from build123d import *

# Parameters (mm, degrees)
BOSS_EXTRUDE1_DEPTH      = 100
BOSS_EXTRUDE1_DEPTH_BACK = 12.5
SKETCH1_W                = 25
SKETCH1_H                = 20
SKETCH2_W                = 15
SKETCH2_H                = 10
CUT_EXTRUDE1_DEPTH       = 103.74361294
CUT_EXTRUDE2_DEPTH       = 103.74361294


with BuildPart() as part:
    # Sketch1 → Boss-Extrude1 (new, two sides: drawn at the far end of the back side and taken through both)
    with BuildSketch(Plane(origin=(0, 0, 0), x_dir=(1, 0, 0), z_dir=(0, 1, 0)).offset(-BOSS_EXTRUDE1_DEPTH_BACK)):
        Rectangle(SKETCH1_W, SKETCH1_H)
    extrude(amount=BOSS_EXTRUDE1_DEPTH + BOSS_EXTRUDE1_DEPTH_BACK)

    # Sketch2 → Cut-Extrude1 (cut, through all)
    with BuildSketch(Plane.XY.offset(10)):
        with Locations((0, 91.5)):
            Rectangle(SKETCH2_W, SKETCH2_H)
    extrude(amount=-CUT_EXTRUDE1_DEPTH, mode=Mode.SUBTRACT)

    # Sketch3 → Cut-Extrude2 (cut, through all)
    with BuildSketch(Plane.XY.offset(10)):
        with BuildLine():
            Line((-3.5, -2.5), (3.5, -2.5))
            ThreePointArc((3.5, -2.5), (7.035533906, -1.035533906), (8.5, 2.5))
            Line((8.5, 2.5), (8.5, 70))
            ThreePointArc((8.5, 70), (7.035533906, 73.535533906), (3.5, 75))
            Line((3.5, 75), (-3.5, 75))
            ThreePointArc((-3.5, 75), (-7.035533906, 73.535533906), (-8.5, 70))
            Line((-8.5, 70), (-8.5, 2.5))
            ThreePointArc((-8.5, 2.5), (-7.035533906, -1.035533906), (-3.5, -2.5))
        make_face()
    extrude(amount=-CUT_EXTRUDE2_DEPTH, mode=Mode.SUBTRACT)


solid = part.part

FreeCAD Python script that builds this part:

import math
import FreeCAD as App
import Part
import Sketcher

V = App.Vector
Q = App.Units.Quantity

doc = App.newDocument("Part")
params = doc.addObject("Spreadsheet::Sheet", "Params")
for row, (alias, value) in enumerate([
    ("sketch1_width", "25 mm"),
    ("sketch1_height", "20 mm"),
    ("pad1_length", "100 mm"),
    ("pad1_length2", "12.5 mm"),
    ("sketch2_width", "15 mm"),
    ("sketch2_height", "10 mm"),
    ("sketch3_radius", "5 mm"),
    ("sketch3_width", "7 mm"),
    ("sketch3_height", "67.5 mm"),
], start=1):
    params.set(f"A{row}", alias)
    params.set(f"B{row}", "=" + value)
    params.setAlias(f"B{row}", alias)

body = doc.addObject("PartDesign::Body", "Body")

# Sketch on XZ plane
sketch1 = body.newObject("Sketcher::SketchObject", "Sketch")
sketch1.AttachmentSupport = (doc.getObject("XZ_Plane"), [""])
sketch1.MapMode = "FlatFace"
sketch1.addGeometry(Part.LineSegment(V(-12, -10, 0), V(-12, 10, 0)), False)
sketch1.addGeometry(Part.LineSegment(V(-12, 10, 0), V(12, 10, 0)), False)
sketch1.addGeometry(Part.LineSegment(V(12, 10, 0), V(12, -10, 0)), False)
sketch1.addGeometry(Part.LineSegment(V(12, -10, 0), V(-12, -10, 0)), False)
sketch1.addConstraint(Sketcher.Constraint("Coincident", 0, 2, 1, 1))
sketch1.addConstraint(Sketcher.Constraint("Coincident", 1, 2, 2, 1))
sketch1.addConstraint(Sketcher.Constraint("Coincident", 2, 2, 3, 1))
sketch1.addConstraint(Sketcher.Constraint("Coincident", 3, 2, 0, 1))
sketch1.addConstraint(Sketcher.Constraint("Vertical", 0))
sketch1.addConstraint(Sketcher.Constraint("Horizontal", 1))
sketch1.addConstraint(Sketcher.Constraint("Vertical", 2))
sketch1.addConstraint(Sketcher.Constraint("Horizontal", 3))
sketch1.addConstraint(Sketcher.Constraint("Symmetric", 0, 2, 2, 2, -1, 1))
sketch1.addConstraint(Sketcher.Constraint("DistanceX", 1, 1, 1, 2, Q("25 mm")))
sketch1.addConstraint(Sketcher.Constraint("DistanceY", 0, 1, 0, 2, Q("20 mm")))
sketch1.setExpression("Constraints[9]", "Params.sketch1_width")
sketch1.setExpression("Constraints[10]", "Params.sketch1_height")
pad1 = body.newObject("PartDesign::Pad", "Pad")
pad1.Profile = sketch1
pad1.Type = "TwoLengths"
pad1.setExpression("Length", "Params.pad1_length")
pad1.setExpression("Length2", "Params.pad1_length2")
pad1.Reversed = True

# Sketch on XY plane
sketch2 = body.newObject("Sketcher::SketchObject", "Sketch001")
sketch2.AttachmentSupport = (doc.getObject("XY_Plane"), [""])
sketch2.MapMode = "FlatFace"
sketch2.AttachmentOffset = App.Placement(V(0, 0, 10), App.Rotation())
sketch2.addGeometry(Part.LineSegment(V(-8, 96, 0), V(-8, 86, 0)), False)
sketch2.addGeometry(Part.LineSegment(V(-8, 86, 0), V(8, 86, 0)), False)
sketch2.addGeometry(Part.LineSegment(V(8, 86, 0), V(8, 96, 0)), False)
sketch2.addGeometry(Part.LineSegment(V(8, 96, 0), V(-8, 96, 0)), False)
sketch2.addConstraint(Sketcher.Constraint("Coincident", 0, 2, 1, 1))
sketch2.addConstraint(Sketcher.Constraint("Coincident", 1, 2, 2, 1))
sketch2.addConstraint(Sketcher.Constraint("Coincident", 2, 2, 3, 1))
sketch2.addConstraint(Sketcher.Constraint("Coincident", 3, 2, 0, 1))
sketch2.addConstraint(Sketcher.Constraint("Vertical", 0))
sketch2.addConstraint(Sketcher.Constraint("Horizontal", 1))
sketch2.addConstraint(Sketcher.Constraint("Vertical", 2))
sketch2.addConstraint(Sketcher.Constraint("Horizontal", 3))
sketch2.addConstraint(Sketcher.Constraint("DistanceX", 1, 1, 1, 2, Q("15 mm")))
sketch2.addConstraint(Sketcher.Constraint("DistanceY", 0, 2, 0, 1, Q("10 mm")))
sketch2.addConstraint(Sketcher.Constraint("DistanceX", 0, 2, -1, 1, Q("7.5 mm")))
sketch2.addConstraint(Sketcher.Constraint("DistanceY", -1, 1, 0, 2, Q("86.5 mm")))
sketch2.setExpression("Constraints[8]", "Params.sketch2_width")
sketch2.setExpression("Constraints[9]", "Params.sketch2_height")
pocket1 = body.newObject("PartDesign::Pocket", "Pocket")
pocket1.Profile = sketch2
pocket1.Type = "ThroughAll"

# Sketch on XY plane
sketch3 = body.newObject("Sketcher::SketchObject", "Sketch002")
sketch3.AttachmentSupport = (doc.getObject("XY_Plane"), [""])
sketch3.MapMode = "FlatFace"
sketch3.AttachmentOffset = App.Placement(V(0, 0, 10), App.Rotation())
sketch3.addGeometry(Part.LineSegment(V(-4, -2, 0), V(4, -2, 0)), False)
sketch3.addGeometry(Part.ArcOfCircle(Part.Circle(V(4, 2, 0), V(0, 0, 1), 5), math.radians(-90), math.radians(0)), False)
sketch3.addGeometry(Part.LineSegment(V(8, 2, 0), V(8, 70, 0)), False)
sketch3.addGeometry(Part.ArcOfCircle(Part.Circle(V(4, 70, 0), V(0, 0, 1), 5), math.radians(0), math.radians(90)), False)
sketch3.addGeometry(Part.LineSegment(V(4, 75, 0), V(-4, 75, 0)), False)
sketch3.addGeometry(Part.ArcOfCircle(Part.Circle(V(-4, 70, 0), V(0, 0, 1), 5), math.radians(90), math.radians(180)), False)
sketch3.addGeometry(Part.LineSegment(V(-8, 70, 0), V(-8, 2, 0)), False)
sketch3.addGeometry(Part.ArcOfCircle(Part.Circle(V(-4, 2, 0), V(0, 0, 1), 5), math.radians(180), math.radians(270)), False)
sketch3.addConstraint(Sketcher.Constraint("Tangent", 0, 2, 1, 1))
sketch3.addConstraint(Sketcher.Constraint("Tangent", 1, 2, 2, 1))
sketch3.addConstraint(Sketcher.Constraint("Tangent", 2, 2, 3, 1))
sketch3.addConstraint(Sketcher.Constraint("Tangent", 3, 2, 4, 1))
sketch3.addConstraint(Sketcher.Constraint("Tangent", 4, 2, 5, 1))
sketch3.addConstraint(Sketcher.Constraint("Tangent", 5, 2, 6, 1))
sketch3.addConstraint(Sketcher.Constraint("Tangent", 6, 2, 7, 1))
sketch3.addConstraint(Sketcher.Constraint("Tangent", 7, 2, 0, 1))
sketch3.addConstraint(Sketcher.Constraint("Horizontal", 0))
sketch3.addConstraint(Sketcher.Constraint("Vertical", 2))
sketch3.addConstraint(Sketcher.Constraint("Horizontal", 4))
sketch3.addConstraint(Sketcher.Constraint("Vertical", 6))
sketch3.addConstraint(Sketcher.Constraint("Equal", 1, 3))
sketch3.addConstraint(Sketcher.Constraint("Equal", 3, 5))
sketch3.addConstraint(Sketcher.Constraint("Equal", 5, 7))
sketch3.addConstraint(Sketcher.Constraint("Radius", 1, Q("5 mm")))
sketch3.addConstraint(Sketcher.Constraint("DistanceX", 0, 1, 0, 2, Q("7 mm")))
sketch3.addConstraint(Sketcher.Constraint("DistanceY", 2, 1, 2, 2, Q("67.5 mm")))
sketch3.addConstraint(Sketcher.Constraint("DistanceY", -1, 1, 3, 3, Q("70 mm")))
sketch3.addConstraint(Sketcher.Constraint("DistanceX", -1, 1, 1, 3, Q("3.5 mm")))
sketch3.setExpression("Constraints[15]", "Params.sketch3_radius")
sketch3.setExpression("Constraints[16]", "Params.sketch3_width")
sketch3.setExpression("Constraints[17]", "Params.sketch3_height")
pocket2 = body.newObject("PartDesign::Pocket", "Pocket001")
pocket2.Profile = sketch3
pocket2.Type = "ThroughAll"

doc.recompute()
